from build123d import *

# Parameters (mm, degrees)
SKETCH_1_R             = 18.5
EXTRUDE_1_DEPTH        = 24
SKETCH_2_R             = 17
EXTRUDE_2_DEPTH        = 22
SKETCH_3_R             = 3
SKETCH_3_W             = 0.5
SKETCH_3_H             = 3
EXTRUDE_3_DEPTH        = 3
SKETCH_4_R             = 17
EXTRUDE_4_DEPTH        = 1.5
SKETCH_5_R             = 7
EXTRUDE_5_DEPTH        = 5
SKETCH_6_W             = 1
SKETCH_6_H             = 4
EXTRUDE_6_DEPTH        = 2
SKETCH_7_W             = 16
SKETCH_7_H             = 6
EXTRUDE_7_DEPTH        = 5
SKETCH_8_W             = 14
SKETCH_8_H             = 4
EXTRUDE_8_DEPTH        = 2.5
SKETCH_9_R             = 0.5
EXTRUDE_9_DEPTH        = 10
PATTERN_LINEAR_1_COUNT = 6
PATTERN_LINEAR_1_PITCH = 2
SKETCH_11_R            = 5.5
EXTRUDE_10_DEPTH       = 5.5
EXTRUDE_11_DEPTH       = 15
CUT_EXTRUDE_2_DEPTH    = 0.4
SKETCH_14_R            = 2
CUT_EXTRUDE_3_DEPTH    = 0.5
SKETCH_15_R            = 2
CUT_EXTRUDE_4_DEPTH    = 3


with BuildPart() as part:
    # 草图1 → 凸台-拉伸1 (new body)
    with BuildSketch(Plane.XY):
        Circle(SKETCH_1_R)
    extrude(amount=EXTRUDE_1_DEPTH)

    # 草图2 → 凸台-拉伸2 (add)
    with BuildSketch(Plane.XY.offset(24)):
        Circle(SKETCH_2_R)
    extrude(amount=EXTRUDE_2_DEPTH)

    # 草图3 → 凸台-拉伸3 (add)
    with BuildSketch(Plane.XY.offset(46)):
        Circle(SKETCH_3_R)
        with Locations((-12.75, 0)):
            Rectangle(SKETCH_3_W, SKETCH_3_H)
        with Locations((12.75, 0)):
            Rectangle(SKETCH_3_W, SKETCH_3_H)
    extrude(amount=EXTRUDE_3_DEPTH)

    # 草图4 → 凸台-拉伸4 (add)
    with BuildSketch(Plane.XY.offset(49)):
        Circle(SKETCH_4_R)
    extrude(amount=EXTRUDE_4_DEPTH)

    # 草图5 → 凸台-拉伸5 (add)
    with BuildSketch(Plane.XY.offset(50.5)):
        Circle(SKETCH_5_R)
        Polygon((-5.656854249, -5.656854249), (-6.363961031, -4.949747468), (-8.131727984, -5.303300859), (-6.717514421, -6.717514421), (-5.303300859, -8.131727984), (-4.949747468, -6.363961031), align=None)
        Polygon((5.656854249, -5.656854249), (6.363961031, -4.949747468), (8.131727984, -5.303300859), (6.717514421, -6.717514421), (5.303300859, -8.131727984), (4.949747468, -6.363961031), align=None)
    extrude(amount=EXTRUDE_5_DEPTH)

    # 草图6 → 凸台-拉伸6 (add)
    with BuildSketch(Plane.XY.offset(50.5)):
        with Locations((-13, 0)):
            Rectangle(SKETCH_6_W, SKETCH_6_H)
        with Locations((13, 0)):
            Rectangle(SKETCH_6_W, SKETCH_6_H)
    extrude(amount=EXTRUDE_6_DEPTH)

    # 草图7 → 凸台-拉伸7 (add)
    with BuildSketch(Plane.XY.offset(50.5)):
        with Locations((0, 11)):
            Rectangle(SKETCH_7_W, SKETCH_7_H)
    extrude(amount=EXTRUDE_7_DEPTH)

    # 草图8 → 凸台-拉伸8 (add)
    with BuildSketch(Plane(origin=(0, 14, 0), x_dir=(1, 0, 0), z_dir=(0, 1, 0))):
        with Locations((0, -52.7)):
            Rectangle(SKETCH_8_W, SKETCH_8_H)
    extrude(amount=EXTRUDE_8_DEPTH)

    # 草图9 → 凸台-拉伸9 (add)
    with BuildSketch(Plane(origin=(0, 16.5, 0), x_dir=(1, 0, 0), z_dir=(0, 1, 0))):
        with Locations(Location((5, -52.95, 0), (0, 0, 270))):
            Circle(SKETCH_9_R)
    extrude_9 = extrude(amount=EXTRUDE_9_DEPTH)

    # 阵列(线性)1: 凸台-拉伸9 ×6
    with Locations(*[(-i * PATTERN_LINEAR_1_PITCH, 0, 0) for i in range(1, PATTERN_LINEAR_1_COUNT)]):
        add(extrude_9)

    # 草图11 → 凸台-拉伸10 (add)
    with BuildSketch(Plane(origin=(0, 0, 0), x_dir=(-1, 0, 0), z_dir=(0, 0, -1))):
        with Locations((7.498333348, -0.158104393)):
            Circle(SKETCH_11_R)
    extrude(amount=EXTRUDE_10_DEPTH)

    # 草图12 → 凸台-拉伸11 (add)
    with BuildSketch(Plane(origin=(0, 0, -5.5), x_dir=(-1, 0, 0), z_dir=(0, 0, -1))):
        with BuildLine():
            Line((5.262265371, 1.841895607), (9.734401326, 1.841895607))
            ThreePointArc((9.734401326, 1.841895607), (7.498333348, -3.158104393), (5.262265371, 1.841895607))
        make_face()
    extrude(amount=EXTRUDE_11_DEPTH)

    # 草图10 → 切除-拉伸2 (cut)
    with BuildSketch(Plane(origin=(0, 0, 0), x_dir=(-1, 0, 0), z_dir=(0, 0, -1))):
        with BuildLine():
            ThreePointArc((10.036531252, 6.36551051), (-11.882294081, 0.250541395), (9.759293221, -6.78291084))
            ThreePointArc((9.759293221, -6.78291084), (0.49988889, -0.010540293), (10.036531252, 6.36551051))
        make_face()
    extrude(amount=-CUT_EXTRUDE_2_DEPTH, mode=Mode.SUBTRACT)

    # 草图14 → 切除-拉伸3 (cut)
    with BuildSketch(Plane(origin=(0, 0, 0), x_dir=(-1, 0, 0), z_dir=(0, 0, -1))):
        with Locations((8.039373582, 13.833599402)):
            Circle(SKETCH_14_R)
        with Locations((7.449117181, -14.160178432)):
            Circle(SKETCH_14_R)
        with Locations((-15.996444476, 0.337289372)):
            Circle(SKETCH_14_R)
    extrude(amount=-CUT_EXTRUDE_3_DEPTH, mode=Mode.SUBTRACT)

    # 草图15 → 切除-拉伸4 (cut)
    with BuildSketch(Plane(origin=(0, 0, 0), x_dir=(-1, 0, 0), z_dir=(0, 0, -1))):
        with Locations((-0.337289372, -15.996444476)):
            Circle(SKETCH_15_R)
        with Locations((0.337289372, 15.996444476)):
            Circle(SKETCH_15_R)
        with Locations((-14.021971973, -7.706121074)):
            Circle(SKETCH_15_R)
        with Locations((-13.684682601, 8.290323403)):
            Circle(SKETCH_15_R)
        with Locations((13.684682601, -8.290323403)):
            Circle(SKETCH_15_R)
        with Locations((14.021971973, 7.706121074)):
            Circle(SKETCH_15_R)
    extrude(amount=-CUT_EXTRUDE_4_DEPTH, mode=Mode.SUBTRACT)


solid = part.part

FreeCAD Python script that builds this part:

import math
import FreeCAD as App
import Part
import Sketcher
from FreeCAD import Vector
Q = App.Units.Quantity

doc = App.newDocument("Part")
params = doc.addObject("Spreadsheet::Sheet", "Params")
for row, (alias, value) in enumerate([
    ("sketch1_diameter", "37 mm"),
    ("pad1_length", "24 mm"),
    ("sketch2_diameter", "34 mm"),
    ("pad2_length", "22 mm"),
    ("sketch3_diameter", "6 mm"),
    ("sketch3_height", "3 mm"),
    ("sketch3_width", "0.5 mm"),
    ("pad3_length", "3 mm"),
    ("sketch4_diameter", "34 mm"),
    ("pad4_length", "1.5 mm"),
    ("sketch5_diameter", "14 mm"),
    ("sketch5_length", "1 mm"),
    ("sketch5_length2", "2 mm"),
    ("pad5_length", "5 mm"),
    ("sketch6_width", "1 mm"),
    ("sketch6_height", "4 mm"),
    ("pad6_length", "2 mm"),
    ("sketch7_width", "16 mm"),
    ("sketch7_height", "6 mm"),
    ("pad7_length", "5 mm"),
    ("sketch8_width", "14 mm"),
    ("sketch8_height", "4 mm"),
    ("pad8_length", "2.5 mm"),
    ("sketch9_diameter", "1 mm"),
    ("pad9_length", "10 mm"),
    ("linearpattern_pitch", "2 mm"),
    ("sketch10_diameter", "11 mm"),
    ("pad10_length", "5.5 mm"),
    ("sketch11_radius", "3 mm"),
    ("pad11_length", "15 mm"),
    ("sketch12_radius", "7 mm"),
    ("pocket1_length", "0.4 mm"),
    ("sketch13_diameter", "4 mm"),
    ("pocket2_length", "0.5 mm"),
    ("sketch14_diameter", "4 mm"),
    ("pocket3_length", "3 mm"),
], start=1):
    params.set(f"A{row}", alias)
    params.set(f"B{row}", "=" + value)
    params.setAlias(f"B{row}", alias)

body = doc.addObject("PartDesign::Body", "Body")

# Sketch on XY plane
sketch1 = body.newObject("Sketcher::SketchObject", "Sketch")
sketch1.AttachmentSupport = (doc.getObject("XY_Plane"), [""])
sketch1.MapMode = "FlatFace"
sketch1.addGeometry(Part.Circle(Vector(0, 0, 0), Vector(0, 0, 1), 18), False)
sketch1.addConstraint([
    Sketcher.Constraint("Coincident", 0, 3, -1, 1),
    Sketcher.Constraint("Diameter", 0, Q("37 mm")),
])
sketch1.setExpression("Constraints[1]", "Params.sketch1_diameter")
pad1 = body.newObject("PartDesign::Pad", "Pad")
pad1.Profile = sketch1
pad1.setExpression("Length", "Params.pad1_length")

# Sketch on XY plane
sketch2 = body.newObject("Sketcher::SketchObject", "Sketch001")
sketch2.AttachmentSupport = (doc.getObject("XY_Plane"), [""])
sketch2.MapMode = "FlatFace"
sketch2.AttachmentOffset = App.Placement(Vector(0, 0, 24), App.Rotation())
sketch2.addGeometry(Part.Circle(Vector(0, 0, 0), Vector(0, 0, 1), 17), False)
sketch2.addConstraint([
    Sketcher.Constraint("Coincident", 0, 3, -1, 1),
    Sketcher.Constraint("Diameter", 0, Q("34 mm")),
])
sketch2.setExpression("Constraints[1]", "Params.sketch2_diameter")
pad2 = body.newObject("PartDesign::Pad", "Pad001")
pad2.Profile = sketch2
pad2.setExpression("Length", "Params.pad2_length")

# Sketch on XY plane
sketch3 = body.newObject("Sketcher::SketchObject", "Sketch002")
sketch3.AttachmentSupport = (doc.getObject("XY_Plane"), [""])
sketch3.MapMode = "FlatFace"
sketch3.AttachmentOffset = App.Placement(Vector(0, 0, 46), App.Rotation())
sketch3.addGeometry([
    Part.Circle(Vector(0, 0, 0), Vector(0, 0, 1), 3),  # 0
    Part.LineSegment(Vector(-13, 1.5, 0), Vector(-13, -1.5, 0)),  # 1
    Part.LineSegment(Vector(-13, -1.5, 0), Vector(-12.5, -1.5, 0)),  # 2
    Part.LineSegment(Vector(-12.5, -1.5, 0), Vector(-12.5, 1.5, 0)),  # 3
    Part.LineSegment(Vector(-12.5, 1.5, 0), Vector(-13, 1.5, 0)),  # 4
    Part.LineSegment(Vector(12.5, 1.5, 0), Vector(12.5, -1.5, 0)),  # 5
    Part.LineSegment(Vector(12.5, -1.5, 0), Vector(13, -1.5, 0)),  # 6
    Part.LineSegment(Vector(13, -1.5, 0), Vector(13, 1.5, 0)),  # 7
    Part.LineSegment(Vector(13, 1.5, 0), Vector(12.5, 1.5, 0)),  # 8
], False)
sketch3.addConstraint([
    Sketcher.Constraint("Coincident", 1, 2, 2, 1),
    Sketcher.Constraint("Coincident", 2, 2, 3, 1),
    Sketcher.Constraint("Coincident", 3, 2, 4, 1),
    Sketcher.Constraint("Coincident", 4, 2, 1, 1),
    Sketcher.Constraint("Coincident", 5, 2, 6, 1),
    Sketcher.Constraint("Coincident", 6, 2, 7, 1),
    Sketcher.Constraint("Coincident", 7, 2, 8, 1),
    Sketcher.Constraint("Coincident", 8, 2, 5, 1),
    Sketcher.Constraint("Vertical", 1),
    Sketcher.Constraint("Horizontal", 2),
    Sketcher.Constraint("Vertical", 3),
    Sketcher.Constraint("Horizontal", 4),
    Sketcher.Constraint("Vertical", 5),
    Sketcher.Constraint("Horizontal", 6),
    Sketcher.Constraint("Vertical", 7),
    Sketcher.Constraint("Horizontal", 8),
    Sketcher.Constraint("Coincident", 0, 3, -1, 1),
    Sketcher.Constraint("Symmetric", 3, 2, 5, 2, -1, 1),
    Sketcher.Constraint("Symmetric", 1, 2, 7, 2, -1, 1),
    Sketcher.Constraint("Horizontal", 2, 2, 5, 2),
    Sketcher.Constraint("Diameter", 0, Q("6 mm")),
    Sketcher.Constraint("DistanceY", 1, 2, 1, 1, Q("3 mm")),
    Sketcher.Constraint("DistanceX", 2, 1, 2, 2, Q("0.5 mm")),
    Sketcher.Constraint("DistanceX", 1, 2, -1, 1, Q("13 mm")),
])
sketch3.setExpression("Constraints[20]", "Params.sketch3_diameter")
sketch3.setExpression("Constraints[21]", "Params.sketch3_height")
sketch3.setExpression("Constraints[22]", "Params.sketch3_width")
pad3 = body.newObject("PartDesign::Pad", "Pad002")
pad3.Profile = sketch3
pad3.setExpression("Length", "Params.pad3_length")

# Sketch on XY plane
sketch4 = body.newObject("Sketcher::SketchObject", "Sketch003")
sketch4.AttachmentSupport = (doc.getObject("XY_Plane"), [""])
sketch4.MapMode = "FlatFace"
sketch4.AttachmentOffset = App.Placement(Vector(0, 0, 49), App.Rotation())
sketch4.addGeometry(Part.Circle(Vector(0, 0, 0), Vector(0, 0, 1), 17), False)
sketch4.addConstraint([
    Sketcher.Constraint("Coincident", 0, 3, -1, 1),
    Sketcher.Constraint("Diameter", 0, Q("34 mm")),
])
sketch4.setExpression("Constraints[1]", "Params.sketch4_diameter")
pad4 = body.newObject("PartDesign::Pad", "Pad003")
pad4.Profile = sketch4
pad4.setExpression("Length", "Params.pad4_length")

# Sketch on XY plane
sketch5 = body.newObject("Sketcher::SketchObject", "Sketch004")
sketch5.AttachmentSupport = (doc.getObject("XY_Plane"), [""])
sketch5.MapMode = "FlatFace"
sketch5.AttachmentOffset = App.Placement(Vector(0, 0, 50.5), App.Rotation())
sketch5.addGeometry([
    Part.Circle(Vector(0, 0, 0), Vector(0, 0, 1), 7),  # 0
    Part.LineSegment(Vector(-5.7, -5.7, 0), Vector(-6.4, -4.9, 0)),  # 1
    Part.LineSegment(Vector(-6.4, -4.9, 0), Vector(-8.1, -5.3, 0)),  # 2
    Part.LineSegment(Vector(-8.1, -5.3, 0), Vector(-6.7, -6.7, 0)),  # 3
    Part.LineSegment(Vector(-6.7, -6.7, 0), Vector(-5.3, -8.1, 0)),  # 4
    Part.LineSegment(Vector(-5.3, -8.1, 0), Vector(-4.9, -6.4, 0)),  # 5
    Part.LineSegment(Vector(-4.9, -6.4, 0), Vector(-5.7, -5.7, 0)),  # 6
    Part.LineSegment(Vector(6.4, -4.9, 0), Vector(5.7, -5.7, 0)),  # 7
    Part.LineSegment(Vector(5.7, -5.7, 0), Vector(4.9, -6.4, 0)),  # 8
    Part.LineSegment(Vector(4.9, -6.4, 0), Vector(5.3, -8.1, 0)),  # 9
    Part.LineSegment(Vector(5.3, -8.1, 0), Vector(6.7, -6.7, 0)),  # 10
    Part.LineSegment(Vector(6.7, -6.7, 0), Vector(8.1, -5.3, 0)),  # 11
    Part.LineSegment(Vector(8.1, -5.3, 0), Vector(6.4, -4.9, 0)),  # 12
], False)
sketch5.addConstraint([
    Sketcher.Constraint("Coincident", 1, 2, 2, 1),
    Sketcher.Constraint("Coincident", 2, 2, 3, 1),
    Sketcher.Constraint("Coincident", 3, 2, 4, 1),
    Sketcher.Constraint("Coincident", 4, 2, 5, 1),
    Sketcher.Constraint("Coincident", 5, 2, 6, 1),
    Sketcher.Constraint("Coincident", 6, 2, 1, 1),
    Sketcher.Constraint("Coincident", 7, 2, 8, 1),
    Sketcher.Constraint("Coincident", 8, 2, 9, 1),
    Sketcher.Constraint("Coincident", 9, 2, 10, 1),
    Sketcher.Constraint("Coincident", 10, 2, 11, 1),
    Sketcher.Constraint("Coincident", 11, 2, 12, 1),
    Sketcher.Constraint("Coincident", 12, 2, 7, 1),
    Sketcher.Constraint("Coincident", 0, 3, -1, 1),
    Sketcher.Constraint("Symmetric", 6, 2, 7, 2, -2),
    Sketcher.Constraint("Symmetric", 5, 2, 8, 2, -2),
    Sketcher.Constraint("Symmetric", 4, 2, 9, 2, -2),
    Sketcher.Constraint("Symmetric", 3, 2, 10, 2, -2),
    Sketcher.Constraint("Symmetric", 2, 2, 11, 2, -2),
    Sketcher.Constraint("Symmetric", 1, 2, 12, 2, -2),
    Sketcher.Constraint("Parallel", 1, 3),
    Sketcher.Constraint("Parallel", 3, 4),
    Sketcher.Constraint("Parallel", 4, 6),
    Sketcher.Constraint("Perpendicular", 6, 7),
    Sketcher.Constraint("Perpendicular", 2, 9),
    Sketcher.Constraint("Equal", 3, 4),
    Sketcher.Constraint("Equal", 1, 6),
    Sketcher.Constraint("Diameter", 0, Q("14 mm")),
    Sketcher.Constraint("Distance", 1, Q("1 mm")),
    Sketcher.Constraint("Distance", 3, Q("2 mm")),
    Sketcher.Constraint("DistanceY", 2, 2, -1, 1, Q("5.303301 mm")),
    Sketcher.Constraint("DistanceX", 4, 2, -1, 1, Q("5.303301 mm")),
    Sketcher.Constraint("DistanceX", 5, 2, 7, 2, Q("10.606602 mm")),
])
sketch5.setExpression("Constraints[26]", "Params.sketch5_diameter")
sketch5.setExpression("Constraints[27]", "Params.sketch5_length")
sketch5.setExpression("Constraints[28]", "Params.sketch5_length2")
pad5 = body.newObject("PartDesign::Pad", "Pad004")
pad5.Profile = sketch5
pad5.setExpression("Length", "Params.pad5_length")

# Sketch on XY plane
sketch6 = body.newObject("Sketcher::SketchObject", "Sketch005")
sketch6.AttachmentSupport = (doc.getObject("XY_Plane"), [""])
sketch6.MapMode = "FlatFace"
sketch6.AttachmentOffset = App.Placement(Vector(0, 0, 50.5), App.Rotation())
sketch6.addGeometry([
    Part.LineSegment(Vector(-13.5, 2, 0), Vector(-13.5, -2, 0)),  # 0
    Part.LineSegment(Vector(-13.5, -2, 0), Vector(-12.5, -2, 0)),  # 1
    Part.LineSegment(Vector(-12.5, -2, 0), Vector(-12.5, 2, 0)),  # 2
    Part.LineSegment(Vector(-12.5, 2, 0), Vector(-13.5, 2, 0)),  # 3
    Part.LineSegment(Vector(12.5, 2, 0), Vector(12.5, -2, 0)),  # 4
    Part.LineSegment(Vector(12.5, -2, 0), Vector(13.5, -2, 0)),  # 5
    Part.LineSegment(Vector(13.5, -2, 0), Vector(13.5, 2, 0)),  # 6
    Part.LineSegment(Vector(13.5, 2, 0), Vector(12.5, 2, 0)),  # 7
], False)
sketch6.addConstraint([
    Sketcher.Constraint("Coincident", 0, 2, 1, 1),
    Sketcher.Constraint("Coincident", 1, 2, 2, 1),
    Sketcher.Constraint("Coincident", 2, 2, 3, 1),
    Sketcher.Constraint("Coincident", 3, 2, 0, 1),
    Sketcher.Constraint("Coincident", 4, 2, 5, 1),
    Sketcher.Constraint("Coincident", 5, 2, 6, 1),
    Sketcher.Constraint("Coincident", 6, 2, 7, 1),
    Sketcher.Constraint("Coincident", 7, 2, 4, 1),
    Sketcher.Constraint("Vertical", 0),
    Sketcher.Constraint("Horizontal", 1),
    Sketcher.Constraint("Vertical", 2),
    Sketcher.Constraint("Horizontal", 3),
    Sketcher.Constraint("Vertical", 4),
    Sketcher.Constraint("Horizontal", 5),
    Sketcher.Constraint("Vertical", 6),
    Sketcher.Constraint("Horizontal", 7),
    Sketcher.Constraint("Symmetric", 2, 2, 4, 2, -1, 1),
    Sketcher.Constraint("Symmetric", 0, 2, 6, 2, -1, 1),
    Sketcher.Constraint("Horizontal", 1, 2, 4, 2),
    Sketcher.Constraint("DistanceX", 1, 1, 1, 2, Q("1 mm")),
    Sketcher.Constraint("DistanceY", 0, 2, 0, 1, Q("4 mm")),
    Sketcher.Constraint("DistanceX", 1, 2, 4, 2, Q("25 mm")),
])
sketch6.setExpression("Constraints[19]", "Params.sketch6_width")
sketch6.setExpression("Constraints[20]", "Params.sketch6_height")
pad6 = body.newObject("PartDesign::Pad", "Pad005")
pad6.Profile = sketch6
pad6.setExpression("Length", "Params.pad6_length")

# Sketch on XY plane
sketch7 = body.newObject("Sketcher::SketchObject", "Sketch006")
sketch7.AttachmentSupport = (doc.getObject("XY_Plane"), [""])
sketch7.MapMode = "FlatFace"
sketch7.AttachmentOffset = App.Placement(Vector(0, 0, 50.5), App.Rotation())
sketch7.addGeometry([
    Part.LineSegment(Vector(-8, 14, 0), Vector(-8, 8, 0)),
    Part.LineSegment(Vector(-8, 8, 0), Vector(8, 8, 0)),
    Part.LineSegment(Vector(8, 8, 0), Vector(8, 14, 0)),
    Part.LineSegment(Vector(8, 14, 0), Vector(-8, 14, 0)),
], False)
sketch7.addConstraint([
    Sketcher.Constraint("Coincident", 0, 2, 1, 1),
    Sketcher.Constraint("Coincident", 1, 2, 2, 1),
    Sketcher.Constraint("Coincident", 2, 2, 3, 1),
    Sketcher.Constraint("Coincident", 3, 2, 0, 1),
    Sketcher.Constraint("Vertical", 0),
    Sketcher.Constraint("Horizontal", 1),
    Sketcher.Constraint("Vertical", 2),
    Sketcher.Constraint("Horizontal", 3),
    Sketcher.Constraint("DistanceX", 1, 1, 1, 2, Q("16 mm")),
    Sketcher.Constraint("DistanceY", 0, 2, 0, 1, Q("6 mm")),
    Sketcher.Constraint("DistanceX", 0, 2, -1, 1, Q("8 mm")),
    Sketcher.Constraint("DistanceY", -1, 1, 0, 2, Q("8 mm")),
])
sketch7.setExpression("Constraints[8]", "Params.sketch7_width")
sketch7.setExpression("Constraints[9]", "Params.sketch7_height")
pad7 = body.newObject("PartDesign::Pad", "Pad006")
pad7.Profile = sketch7
pad7.setExpression("Length", "Params.pad7_length")

# Sketch on XZ plane
sketch8 = body.newObject("Sketcher::SketchObject", "Sketch007")
sketch8.AttachmentSupport = (doc.getObject("XZ_Plane"), [""])
sketch8.MapMode = "FlatFace"
sketch8.AttachmentOffset = App.Placement(Vector(0, 0, -14), App.Rotation())
sketch8.addGeometry([
    Part.LineSegment(Vector(-7, 50.7, 0), Vector(-7, 54.7, 0)),
    Part.LineSegment(Vector(-7, 54.7, 0), Vector(7, 54.7, 0)),
    Part.LineSegment(Vector(7, 54.7, 0), Vector(7, 50.7, 0)),
    Part.LineSegment(Vector(7, 50.7, 0), Vector(-7, 50.7, 0)),
], False)
sketch8.addConstraint([
    Sketcher.Constraint("Coincident", 0, 2, 1, 1),
    Sketcher.Constraint("Coincident", 1, 2, 2, 1),
    Sketcher.Constraint("Coincident", 2, 2, 3, 1),
    Sketcher.Constraint("Coincident", 3, 2, 0, 1),
    Sketcher.Constraint("Vertical", 0),
    Sketcher.Constraint("Horizontal", 1),
    Sketcher.Constraint("Vertical", 2),
    Sketcher.Constraint("Horizontal", 3),
    Sketcher.Constraint("DistanceX", 1, 1, 1, 2, Q("14 mm")),
    Sketcher.Constraint("DistanceY", 0, 1, 0, 2, Q("4 mm")),
    Sketcher.Constraint("DistanceX", 0, 2, -1, 1, Q("7 mm")),
    Sketcher.Constraint("DistanceY", -1, 1, 0, 2, Q("54.7 mm")),
])
sketch8.setExpression("Constraints[8]", "Params.sketch8_width")
sketch8.setExpression("Constraints[9]", "Params.sketch8_height")
pad8 = body.newObject("PartDesign::Pad", "Pad007")
pad8.Profile = sketch8
pad8.setExpression("Length", "Params.pad8_length")
pad8.Reversed = True

# Sketch on XZ plane
sketch9 = body.newObject("Sketcher::SketchObject", "Sketch008")
sketch9.AttachmentSupport = (doc.getObject("XZ_Plane"), [""])
sketch9.MapMode = "FlatFace"
sketch9.AttachmentOffset = App.Placement(Vector(0, 0, -16.5), App.Rotation())
sketch9.addGeometry(Part.Circle(Vector(5, 53, 0), Vector(0, 0, 1), 0.5), False)
sketch9.addConstraint([
    Sketcher.Constraint("Diameter", 0, Q("1 mm")),
    Sketcher.Constraint("DistanceX", -1, 1, 0, 3, Q("5 mm")),
    Sketcher.Constraint("DistanceY", -1, 1, 0, 3, Q("52.95 mm")),
])
sketch9.setExpression("Constraints[0]", "Params.sketch9_diameter")
pad9 = body.newObject("PartDesign::Pad", "Pad008")
pad9.Profile = sketch9
pad9.setExpression("Length", "Params.pad9_length")
pad9.Reversed = True
doc.recompute()

linearpattern = body.newObject("PartDesign::LinearPattern", "LinearPattern")
linearpattern.Originals = [pad9]
linearpattern.Direction = (doc.getObject("X_Axis"), [""])
linearpattern.Mode = "offset"
linearpattern.setExpression("Offset", "Params.linearpattern_pitch")
linearpattern.Occurrences = 6
linearpattern.Reversed = True
body.Tip = linearpattern

# Sketch on XY plane
sketch10 = body.newObject("Sketcher::SketchObject", "Sketch009")
sketch10.AttachmentSupport = (doc.getObject("XY_Plane"), [""])
sketch10.MapMode = "FlatFace"
sketch10.addGeometry(Part.Circle(Vector(-7, 0, 0), Vector(0, 0, 1), 6), False)
sketch10.addConstraint([
    Sketcher.Constraint("Diameter", 0, Q("11 mm")),
    Sketcher.Constraint("DistanceX", 0, 3, -1, 1, Q("7.498333 mm")),
    Sketcher.Constraint("DistanceY", 0, 3, -1, 1, Q("0.158104 mm")),
])
sketch10.setExpression("Constraints[0]", "Params.sketch10_diameter")
pad10 = body.newObject("PartDesign::Pad", "Pad009")
pad10.Profile = sketch10
pad10.setExpression("Length", "Params.pad10_length")
pad10.Reversed = True

# Sketch on XY plane
sketch11 = body.newObject("Sketcher::SketchObject", "Sketch010")
sketch11.AttachmentSupport = (doc.getObject("XY_Plane"), [""])
sketch11.MapMode = "FlatFace"
sketch11.AttachmentOffset = App.Placement(Vector(0, 0, -5.5), App.Rotation())
sketch11.addGeometry([
    Part.LineSegment(Vector(-9.7, 1.8, 0), Vector(-5.3, 1.8, 0)),
    Part.ArcOfCircle(Part.Circle(Vector(-7.5, -0.2, 0), Vector(0, 0, 1), 3), math.radians(138), math.radians(402)),
], False)
sketch11.addConstraint([
    Sketcher.Constraint("Coincident", 0, 1, 1, 1),
    Sketcher.Constraint("Coincident", 1, 2, 0, 2),
    Sketcher.Constraint("Horizontal", 0),
    Sketcher.Constraint("Radius", 1, Q("3 mm")),
    Sketcher.Constraint("DistanceY", 1, 3, 0, 1, Q("2 mm")),
    Sketcher.Constraint("DistanceX", 0, 1, -1, 1, Q("9.734401 mm")),
    Sketcher.Constraint("DistanceY", 1, 3, -1, 1, Q("0.158104 mm")),
])
sketch11.setExpression("Constraints[3]", "Params.sketch11_radius")
pad11 = body.newObject("PartDesign::Pad", "Pad010")
pad11.Profile = sketch11
pad11.setExpression("Length", "Params.pad11_length")
pad11.Reversed = True

# Sketch on XY plane
sketch12 = body.newObject("Sketcher::SketchObject", "Sketch011")
sketch12.AttachmentSupport = (doc.getObject("XY_Plane"), [""])
sketch12.MapMode = "FlatFace"
sketch12.addGeometry([
    Part.ArcOfCircle(Part.Circle(Vector(0, 0, 0), Vector(0, 0, 1), 12), math.radians(-145), math.radians(148)),
    Part.ArcOfCircle(Part.Circle(Vector(-7, 0, 0), Vector(0, 0, 1), 7), math.radians(-109), math.radians(111)),
], False)
sketch12.addConstraint([
    Sketcher.Constraint("Coincident", 0, 1, 1, 1),
    Sketcher.Constraint("Coincident", 1, 2, 0, 2),
    Sketcher.Constraint("Coincident", 0, 3, -1, 1),
    Sketcher.Constraint("Radius", 1, Q("7 mm")),
    Sketcher.Constraint("Radius", 0, Q("11.884935 mm")),
    Sketcher.Constraint("DistanceY", 0, 1, -1, 1, Q("6.782911 mm")),
    Sketcher.Constraint("DistanceX", 1, 2, -1, 1, Q("10.036531 mm")),
])
sketch12.setExpression("Constraints[3]", "Params.sketch12_radius")
pocket1 = body.newObject("PartDesign::Pocket", "Pocket")
pocket1.Profile = sketch12
pocket1.setExpression("Length", "Params.pocket1_length")
pocket1.Reversed = True

# Sketch on XY plane
sketch13 = body.newObject("Sketcher::SketchObject", "Sketch012")
sketch13.AttachmentSupport = (doc.getObject("XY_Plane"), [""])
sketch13.MapMode = "FlatFace"
sketch13.addGeometry([
    Part.Circle(Vector(-8, 13.8, 0), Vector(0, 0, 1), 2),
    Part.Circle(Vector(-7.4, -14.2, 0), Vector(0, 0, 1), 2),
    Part.Circle(Vector(16, 0.3, 0), Vector(0, 0, 1), 2),
], False)
sketch13.addConstraint([
    Sketcher.Constraint("Equal", 0, 1),
    Sketcher.Constraint("Equal", 1, 2),
    Sketcher.Constraint("Diameter", 0, Q("4 mm")),
    Sketcher.Constraint("DistanceY", -1, 1, 0, 3, Q("13.833599 mm")),
    Sketcher.Constraint("DistanceY", 1, 3, -1, 1, Q("14.160178 mm")),
    Sketcher.Constraint("DistanceY", -1, 1, 2, 3, Q("0.337289 mm")),
    Sketcher.Constraint("DistanceX", 1, 3, 2, 3, Q("23.445562 mm")),
    Sketcher.Constraint("DistanceX", 0, 3, 2, 3, Q("24.035818 mm")),
    Sketcher.Constraint("DistanceX", 0, 3, -1, 1, Q("8.039374 mm")),
])
sketch13.setExpression("Constraints[2]", "Params.sketch13_diameter")
pocket2 = body.newObject("PartDesign::Pocket", "Pocket001")
pocket2.Profile = sketch13
pocket2.setExpression("Length", "Params.pocket2_length")
pocket2.Reversed = True

# Sketch on XY plane
sketch14 = body.newObject("Sketcher::SketchObject", "Sketch013")
sketch14.AttachmentSupport = (doc.getObject("XY_Plane"), [""])
sketch14.MapMode = "FlatFace"
sketch14.addGeometry([
    Part.Circle(Vector(0.3, -16, 0), Vector(0, 0, 1), 2),  # 0
    Part.Circle(Vector(-0.3, 16, 0), Vector(0, 0, 1), 2),  # 1
    Part.Circle(Vector(14, -7.7, 0), Vector(0, 0, 1), 2),  # 2
    Part.Circle(Vector(13.7, 8.3, 0), Vector(0, 0, 1), 2),  # 3
    Part.Circle(Vector(-13.7, -8.3, 0), Vector(0, 0, 1), 2),  # 4
    Part.Circle(Vector(-14, 7.7, 0), Vector(0, 0, 1), 2),  # 5
], False)
sketch14.addConstraint([
    Sketcher.Constraint("Equal", 0, 1),
    Sketcher.Constraint("Equal", 1, 2),
    Sketcher.Constraint("Equal", 2, 3),
    Sketcher.Constraint("Equal", 3, 4),
    Sketcher.Constraint("Equal", 4, 5),
    Sketcher.Constraint("Symmetric", 0, 3, 1, 3, -1, 1),
    Sketcher.Constraint("Symmetric", 3, 3, 4, 3, -1, 1),
    Sketcher.Constraint("Symmetric", 2, 3, 5, 3, -1, 1),
    Sketcher.Constraint("Diameter", 0, Q("4 mm")),
    Sketcher.Constraint("DistanceX", -1, 1, 0, 3, Q("0.337289 mm")),
    Sketcher.Constraint("DistanceX", -1, 1, 2, 3, Q("14.021972 mm")),
    Sketcher.Constraint("DistanceY", 2, 3, -1, 1, Q("7.706121 mm")),
    Sketcher.Constraint("DistanceY", 0, 3, 1, 3, Q("31.992889 mm")),
    Sketcher.Constraint("DistanceX", 1, 3, 3, 3, Q("14.021972 mm")),
    Sketcher.Constraint("DistanceY", 3, 3, 1, 3, Q("7.706121 mm")),
])
sketch14.setExpression("Constraints[8]", "Params.sketch14_diameter")
pocket3 = body.newObject("PartDesign::Pocket", "Pocket002")
pocket3.Profile = sketch14
pocket3.setExpression("Length", "Params.pocket3_length")
pocket3.Reversed = True

doc.recompute()
